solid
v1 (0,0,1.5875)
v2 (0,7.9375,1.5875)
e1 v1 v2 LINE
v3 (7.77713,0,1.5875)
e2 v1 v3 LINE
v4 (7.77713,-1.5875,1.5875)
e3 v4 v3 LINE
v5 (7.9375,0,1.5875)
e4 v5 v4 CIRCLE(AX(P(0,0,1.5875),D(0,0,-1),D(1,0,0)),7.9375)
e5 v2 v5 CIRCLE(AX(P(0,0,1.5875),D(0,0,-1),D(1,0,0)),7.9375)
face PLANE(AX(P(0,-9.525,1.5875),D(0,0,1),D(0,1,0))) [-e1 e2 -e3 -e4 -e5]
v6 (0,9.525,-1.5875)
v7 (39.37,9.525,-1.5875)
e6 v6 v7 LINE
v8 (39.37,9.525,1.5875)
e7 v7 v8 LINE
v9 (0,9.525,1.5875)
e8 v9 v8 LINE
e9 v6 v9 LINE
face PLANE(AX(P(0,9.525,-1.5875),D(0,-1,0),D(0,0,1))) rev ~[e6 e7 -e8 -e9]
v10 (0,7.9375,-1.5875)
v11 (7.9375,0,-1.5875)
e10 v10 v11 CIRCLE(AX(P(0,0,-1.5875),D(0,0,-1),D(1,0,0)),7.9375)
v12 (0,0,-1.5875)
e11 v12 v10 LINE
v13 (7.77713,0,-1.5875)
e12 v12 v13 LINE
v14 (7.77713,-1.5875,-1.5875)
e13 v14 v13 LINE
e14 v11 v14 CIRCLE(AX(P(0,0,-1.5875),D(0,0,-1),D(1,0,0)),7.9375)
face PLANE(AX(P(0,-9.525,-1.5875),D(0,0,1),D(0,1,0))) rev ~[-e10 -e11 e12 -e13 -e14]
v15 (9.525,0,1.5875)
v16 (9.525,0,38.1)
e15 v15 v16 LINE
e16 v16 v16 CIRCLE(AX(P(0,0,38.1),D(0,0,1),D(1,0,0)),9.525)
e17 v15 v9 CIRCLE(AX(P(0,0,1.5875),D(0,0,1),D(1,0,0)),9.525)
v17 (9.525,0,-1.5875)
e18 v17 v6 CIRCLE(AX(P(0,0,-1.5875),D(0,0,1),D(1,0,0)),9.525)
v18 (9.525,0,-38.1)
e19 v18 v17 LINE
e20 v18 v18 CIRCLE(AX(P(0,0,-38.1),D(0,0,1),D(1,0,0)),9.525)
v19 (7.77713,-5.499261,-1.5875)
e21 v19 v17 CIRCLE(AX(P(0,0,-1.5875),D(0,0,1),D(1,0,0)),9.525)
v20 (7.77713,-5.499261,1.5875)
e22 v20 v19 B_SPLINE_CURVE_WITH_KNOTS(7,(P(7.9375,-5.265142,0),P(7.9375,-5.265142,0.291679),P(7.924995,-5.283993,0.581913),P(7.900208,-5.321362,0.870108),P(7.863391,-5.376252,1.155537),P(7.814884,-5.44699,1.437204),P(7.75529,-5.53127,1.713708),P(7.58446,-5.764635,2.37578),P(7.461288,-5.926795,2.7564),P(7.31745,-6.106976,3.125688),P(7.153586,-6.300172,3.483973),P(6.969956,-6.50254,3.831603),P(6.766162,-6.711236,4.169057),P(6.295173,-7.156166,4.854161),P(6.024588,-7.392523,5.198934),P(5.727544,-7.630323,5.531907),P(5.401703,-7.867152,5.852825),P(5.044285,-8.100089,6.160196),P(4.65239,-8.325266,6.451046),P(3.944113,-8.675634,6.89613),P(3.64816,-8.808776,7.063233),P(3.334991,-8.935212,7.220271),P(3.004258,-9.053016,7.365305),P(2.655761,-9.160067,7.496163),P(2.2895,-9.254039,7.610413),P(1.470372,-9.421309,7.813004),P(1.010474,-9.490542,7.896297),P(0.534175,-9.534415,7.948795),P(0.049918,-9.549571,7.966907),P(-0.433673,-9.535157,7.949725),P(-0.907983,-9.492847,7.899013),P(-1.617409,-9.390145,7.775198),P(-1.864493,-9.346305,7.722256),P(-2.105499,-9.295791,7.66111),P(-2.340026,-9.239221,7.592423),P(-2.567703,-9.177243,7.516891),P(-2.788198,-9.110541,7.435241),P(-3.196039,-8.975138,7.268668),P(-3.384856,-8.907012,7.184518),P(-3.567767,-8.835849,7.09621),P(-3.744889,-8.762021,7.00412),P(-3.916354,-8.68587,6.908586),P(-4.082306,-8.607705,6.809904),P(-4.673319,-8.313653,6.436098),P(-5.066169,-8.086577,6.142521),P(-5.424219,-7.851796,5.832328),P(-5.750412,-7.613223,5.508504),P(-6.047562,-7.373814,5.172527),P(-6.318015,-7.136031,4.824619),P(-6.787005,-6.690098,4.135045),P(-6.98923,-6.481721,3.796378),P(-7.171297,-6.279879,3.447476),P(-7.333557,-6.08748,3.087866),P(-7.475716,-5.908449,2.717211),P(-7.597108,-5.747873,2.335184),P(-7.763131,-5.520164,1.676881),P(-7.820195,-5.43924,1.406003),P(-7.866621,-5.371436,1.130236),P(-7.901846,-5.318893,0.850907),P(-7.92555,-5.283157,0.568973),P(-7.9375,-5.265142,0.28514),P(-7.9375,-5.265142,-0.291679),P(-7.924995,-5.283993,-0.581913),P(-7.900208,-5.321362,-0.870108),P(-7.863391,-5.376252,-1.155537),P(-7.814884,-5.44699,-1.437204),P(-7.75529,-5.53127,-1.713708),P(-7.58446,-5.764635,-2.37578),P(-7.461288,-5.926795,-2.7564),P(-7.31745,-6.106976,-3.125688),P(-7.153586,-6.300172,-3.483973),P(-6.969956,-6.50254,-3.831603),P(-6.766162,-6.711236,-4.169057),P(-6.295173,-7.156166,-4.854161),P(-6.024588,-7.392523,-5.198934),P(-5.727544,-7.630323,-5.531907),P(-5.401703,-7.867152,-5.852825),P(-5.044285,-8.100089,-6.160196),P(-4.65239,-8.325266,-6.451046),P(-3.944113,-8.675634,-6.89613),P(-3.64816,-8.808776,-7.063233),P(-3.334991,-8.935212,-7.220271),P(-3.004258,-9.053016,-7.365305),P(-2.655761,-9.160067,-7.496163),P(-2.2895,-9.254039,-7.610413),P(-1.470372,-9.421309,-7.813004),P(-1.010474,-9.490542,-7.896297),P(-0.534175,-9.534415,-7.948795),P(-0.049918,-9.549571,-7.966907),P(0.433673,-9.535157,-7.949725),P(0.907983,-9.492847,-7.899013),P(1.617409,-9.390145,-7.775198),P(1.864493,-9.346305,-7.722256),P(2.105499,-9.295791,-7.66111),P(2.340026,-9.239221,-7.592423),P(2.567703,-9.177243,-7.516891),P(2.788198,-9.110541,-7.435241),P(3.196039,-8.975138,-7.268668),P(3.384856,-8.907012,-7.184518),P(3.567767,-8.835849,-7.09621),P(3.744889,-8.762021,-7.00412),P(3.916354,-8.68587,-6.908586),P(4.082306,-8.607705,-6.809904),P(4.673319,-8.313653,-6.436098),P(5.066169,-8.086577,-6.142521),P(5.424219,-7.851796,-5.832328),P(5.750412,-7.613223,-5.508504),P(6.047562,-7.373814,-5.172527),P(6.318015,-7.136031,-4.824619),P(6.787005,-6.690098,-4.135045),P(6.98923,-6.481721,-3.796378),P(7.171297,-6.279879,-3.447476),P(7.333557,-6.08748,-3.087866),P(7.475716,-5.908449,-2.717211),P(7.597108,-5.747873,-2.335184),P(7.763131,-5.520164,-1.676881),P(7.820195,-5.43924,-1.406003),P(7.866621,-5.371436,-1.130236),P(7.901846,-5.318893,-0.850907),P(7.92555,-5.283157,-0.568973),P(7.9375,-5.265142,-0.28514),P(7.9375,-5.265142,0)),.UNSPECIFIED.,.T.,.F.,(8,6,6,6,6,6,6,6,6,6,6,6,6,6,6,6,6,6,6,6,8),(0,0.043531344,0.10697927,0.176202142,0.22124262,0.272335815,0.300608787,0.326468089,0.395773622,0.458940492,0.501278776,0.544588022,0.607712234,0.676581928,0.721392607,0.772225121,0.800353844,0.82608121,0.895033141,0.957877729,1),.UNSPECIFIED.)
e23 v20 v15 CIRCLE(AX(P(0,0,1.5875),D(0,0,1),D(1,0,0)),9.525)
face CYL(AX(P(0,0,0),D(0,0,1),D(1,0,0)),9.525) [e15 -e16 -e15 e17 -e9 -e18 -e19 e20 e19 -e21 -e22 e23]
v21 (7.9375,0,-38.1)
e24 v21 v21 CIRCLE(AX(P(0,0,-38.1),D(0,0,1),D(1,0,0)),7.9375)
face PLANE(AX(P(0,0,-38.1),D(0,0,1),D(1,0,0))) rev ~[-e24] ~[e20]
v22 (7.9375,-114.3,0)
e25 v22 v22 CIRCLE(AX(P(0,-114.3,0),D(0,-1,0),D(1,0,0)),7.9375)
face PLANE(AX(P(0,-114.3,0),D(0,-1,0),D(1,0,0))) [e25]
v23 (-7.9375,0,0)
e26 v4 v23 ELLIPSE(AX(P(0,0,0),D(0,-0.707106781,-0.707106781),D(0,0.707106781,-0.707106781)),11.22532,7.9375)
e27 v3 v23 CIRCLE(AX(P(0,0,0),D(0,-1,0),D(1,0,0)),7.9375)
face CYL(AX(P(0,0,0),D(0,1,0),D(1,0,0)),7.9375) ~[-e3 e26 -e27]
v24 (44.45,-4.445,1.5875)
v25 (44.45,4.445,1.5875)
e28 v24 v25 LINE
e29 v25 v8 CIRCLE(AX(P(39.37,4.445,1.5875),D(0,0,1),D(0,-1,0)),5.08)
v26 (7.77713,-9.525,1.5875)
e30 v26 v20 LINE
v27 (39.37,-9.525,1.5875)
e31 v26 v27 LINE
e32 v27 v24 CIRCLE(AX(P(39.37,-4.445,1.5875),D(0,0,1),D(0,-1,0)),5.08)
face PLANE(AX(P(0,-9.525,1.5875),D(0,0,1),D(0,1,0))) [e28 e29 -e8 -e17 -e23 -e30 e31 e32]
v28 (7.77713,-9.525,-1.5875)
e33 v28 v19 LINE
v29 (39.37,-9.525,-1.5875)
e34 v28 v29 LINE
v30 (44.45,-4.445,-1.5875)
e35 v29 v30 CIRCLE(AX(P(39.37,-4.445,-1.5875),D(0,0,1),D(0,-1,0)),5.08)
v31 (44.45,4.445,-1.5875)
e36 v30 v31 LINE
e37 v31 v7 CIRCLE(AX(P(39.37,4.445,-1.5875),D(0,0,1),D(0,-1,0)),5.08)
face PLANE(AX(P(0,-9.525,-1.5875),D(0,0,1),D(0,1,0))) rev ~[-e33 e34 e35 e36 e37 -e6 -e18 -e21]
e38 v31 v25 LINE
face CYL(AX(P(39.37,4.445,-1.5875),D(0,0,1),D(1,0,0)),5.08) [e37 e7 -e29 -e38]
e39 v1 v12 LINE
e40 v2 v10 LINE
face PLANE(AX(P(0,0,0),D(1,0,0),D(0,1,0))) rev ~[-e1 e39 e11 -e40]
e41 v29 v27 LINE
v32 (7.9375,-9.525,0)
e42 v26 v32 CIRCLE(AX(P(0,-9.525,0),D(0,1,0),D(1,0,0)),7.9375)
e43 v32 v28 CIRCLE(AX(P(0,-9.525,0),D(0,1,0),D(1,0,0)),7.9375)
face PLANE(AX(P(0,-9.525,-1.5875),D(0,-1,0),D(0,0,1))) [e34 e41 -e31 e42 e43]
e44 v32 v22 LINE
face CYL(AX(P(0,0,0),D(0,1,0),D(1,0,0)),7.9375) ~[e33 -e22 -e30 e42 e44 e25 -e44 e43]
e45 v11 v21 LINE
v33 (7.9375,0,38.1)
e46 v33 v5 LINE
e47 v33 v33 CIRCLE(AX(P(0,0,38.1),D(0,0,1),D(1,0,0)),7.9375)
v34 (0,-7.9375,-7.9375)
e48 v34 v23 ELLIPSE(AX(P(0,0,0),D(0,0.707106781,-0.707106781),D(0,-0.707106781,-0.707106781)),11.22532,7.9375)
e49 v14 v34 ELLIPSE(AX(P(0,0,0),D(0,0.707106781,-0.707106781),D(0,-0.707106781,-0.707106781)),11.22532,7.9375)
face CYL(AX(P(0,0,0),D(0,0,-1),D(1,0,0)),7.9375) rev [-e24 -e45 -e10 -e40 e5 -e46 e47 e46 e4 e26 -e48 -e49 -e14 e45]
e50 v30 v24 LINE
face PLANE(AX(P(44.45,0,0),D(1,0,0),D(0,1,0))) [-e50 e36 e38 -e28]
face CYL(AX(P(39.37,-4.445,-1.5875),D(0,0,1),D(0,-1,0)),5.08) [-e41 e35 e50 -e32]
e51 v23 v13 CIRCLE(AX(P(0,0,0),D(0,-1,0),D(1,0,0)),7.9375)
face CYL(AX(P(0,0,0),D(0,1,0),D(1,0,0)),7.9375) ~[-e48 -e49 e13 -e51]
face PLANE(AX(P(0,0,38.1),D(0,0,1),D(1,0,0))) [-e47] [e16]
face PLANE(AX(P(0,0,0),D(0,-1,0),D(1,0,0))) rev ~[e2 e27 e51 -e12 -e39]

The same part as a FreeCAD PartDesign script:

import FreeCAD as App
import Part
import Sketcher
from FreeCAD import Vector
Q = App.Units.Quantity


def edges_at(feature, points):
    """Names of the edges that pass closest to the given points."""
    edges = feature.Shape.Edges
    near = lambda p: min(range(len(edges)), key=lambda i: edges[i].distToShape(Part.Vertex(*p))[0])
    return sorted({f"Edge{near(p) + 1}" for p in points})


def add_polygon(sketch, points):
    """Adds a closed chain of lines whose ends are joined by coincident constraints."""
    first, n = sketch.GeometryCount, len(points)
    for a, b in zip(points, points[1:] + points[:1]):
        sketch.addGeometry(Part.LineSegment(App.Vector(*a, 0), App.Vector(*b, 0)), False)
    for i in range(n):
        sketch.addConstraint(Sketcher.Constraint("Coincident", first + i, 2, first + (i + 1) % n, 1))

doc = App.newDocument("Part")
body = doc.addObject("PartDesign::Body", "Body")

sketch1 = body.newObject("Sketcher::SketchObject", "Sketch")
sketch1.AttachmentSupport = (doc.getObject("XY_Plane"), [""])
sketch1.MapMode = "FlatFace"
sketch1.addGeometry([
    Part.Circle(Vector(0, 0, 0), Vector(0, 0, 1), 10),
    Part.Circle(Vector(0, 0, 0), Vector(0, 0, 1), 8),
], False)
sketch1.addConstraint([
    Sketcher.Constraint("Coincident", 0, 3, -1, 1),
    Sketcher.Constraint("Coincident", 1, 3, -1, 1),
    Sketcher.Constraint("Diameter", 0, Q("0.75 in")),
    Sketcher.Constraint("Diameter", 1, Q("0.625 in")),
])
pad1 = body.newObject("PartDesign::Pad", "Pad")
pad1.Profile = sketch1
pad1.Length = Q("3 in")
pad1.Midplane = True

sketch2 = body.newObject("Sketcher::SketchObject", "Sketch001")
sketch2.AttachmentSupport = (doc.getObject("YZ_Plane"), [""])
sketch2.MapMode = "FlatFace"
add_polygon(sketch2, [(-9.5, 1.6), (-9.5, -1.6), (9.5, -1.6), (9.5, 1.6)])
sketch2.addConstraint([
    Sketcher.Constraint("Vertical", 0),
    Sketcher.Constraint("Horizontal", 1),
    Sketcher.Constraint("Vertical", 2),
    Sketcher.Constraint("Horizontal", 3),
    Sketcher.Constraint("Symmetric", 0, 2, 2, 2, -1, 1),
    Sketcher.Constraint("DistanceX", 1, 1, 1, 2, Q("0.75 in")),
    Sketcher.Constraint("DistanceY", 0, 2, 0, 1, Q("0.125 in")),
])
pad2 = body.newObject("PartDesign::Pad", "Pad001")
pad2.Profile = sketch2
pad2.Length = Q("1.75 in")
doc.recompute()

fillet = body.newObject("PartDesign::Fillet", "Fillet")
fillet.Base = (pad2, edges_at(pad2, [(44.45, -9.525, 0), (44.45, 9.525, 0)]))
fillet.Radius = Q("0.2 in")

sketch3 = body.newObject("Sketcher::SketchObject", "Sketch002")
sketch3.AttachmentSupport = (doc.getObject("XZ_Plane"), [""])
sketch3.MapMode = "FlatFace"
sketch3.addGeometry(Part.Circle(Vector(0, 0, 0), Vector(0, 0, 1), 8), False)
sketch3.addConstraint([
    Sketcher.Constraint("Coincident", 0, 3, -1, 1),
    Sketcher.Constraint("Diameter", 0, Q("0.625 in")),
])
pad3 = body.newObject("PartDesign::Pad", "Pad002")
pad3.Profile = sketch3
pad3.Length = Q("4.5 in")

doc.recompute()
